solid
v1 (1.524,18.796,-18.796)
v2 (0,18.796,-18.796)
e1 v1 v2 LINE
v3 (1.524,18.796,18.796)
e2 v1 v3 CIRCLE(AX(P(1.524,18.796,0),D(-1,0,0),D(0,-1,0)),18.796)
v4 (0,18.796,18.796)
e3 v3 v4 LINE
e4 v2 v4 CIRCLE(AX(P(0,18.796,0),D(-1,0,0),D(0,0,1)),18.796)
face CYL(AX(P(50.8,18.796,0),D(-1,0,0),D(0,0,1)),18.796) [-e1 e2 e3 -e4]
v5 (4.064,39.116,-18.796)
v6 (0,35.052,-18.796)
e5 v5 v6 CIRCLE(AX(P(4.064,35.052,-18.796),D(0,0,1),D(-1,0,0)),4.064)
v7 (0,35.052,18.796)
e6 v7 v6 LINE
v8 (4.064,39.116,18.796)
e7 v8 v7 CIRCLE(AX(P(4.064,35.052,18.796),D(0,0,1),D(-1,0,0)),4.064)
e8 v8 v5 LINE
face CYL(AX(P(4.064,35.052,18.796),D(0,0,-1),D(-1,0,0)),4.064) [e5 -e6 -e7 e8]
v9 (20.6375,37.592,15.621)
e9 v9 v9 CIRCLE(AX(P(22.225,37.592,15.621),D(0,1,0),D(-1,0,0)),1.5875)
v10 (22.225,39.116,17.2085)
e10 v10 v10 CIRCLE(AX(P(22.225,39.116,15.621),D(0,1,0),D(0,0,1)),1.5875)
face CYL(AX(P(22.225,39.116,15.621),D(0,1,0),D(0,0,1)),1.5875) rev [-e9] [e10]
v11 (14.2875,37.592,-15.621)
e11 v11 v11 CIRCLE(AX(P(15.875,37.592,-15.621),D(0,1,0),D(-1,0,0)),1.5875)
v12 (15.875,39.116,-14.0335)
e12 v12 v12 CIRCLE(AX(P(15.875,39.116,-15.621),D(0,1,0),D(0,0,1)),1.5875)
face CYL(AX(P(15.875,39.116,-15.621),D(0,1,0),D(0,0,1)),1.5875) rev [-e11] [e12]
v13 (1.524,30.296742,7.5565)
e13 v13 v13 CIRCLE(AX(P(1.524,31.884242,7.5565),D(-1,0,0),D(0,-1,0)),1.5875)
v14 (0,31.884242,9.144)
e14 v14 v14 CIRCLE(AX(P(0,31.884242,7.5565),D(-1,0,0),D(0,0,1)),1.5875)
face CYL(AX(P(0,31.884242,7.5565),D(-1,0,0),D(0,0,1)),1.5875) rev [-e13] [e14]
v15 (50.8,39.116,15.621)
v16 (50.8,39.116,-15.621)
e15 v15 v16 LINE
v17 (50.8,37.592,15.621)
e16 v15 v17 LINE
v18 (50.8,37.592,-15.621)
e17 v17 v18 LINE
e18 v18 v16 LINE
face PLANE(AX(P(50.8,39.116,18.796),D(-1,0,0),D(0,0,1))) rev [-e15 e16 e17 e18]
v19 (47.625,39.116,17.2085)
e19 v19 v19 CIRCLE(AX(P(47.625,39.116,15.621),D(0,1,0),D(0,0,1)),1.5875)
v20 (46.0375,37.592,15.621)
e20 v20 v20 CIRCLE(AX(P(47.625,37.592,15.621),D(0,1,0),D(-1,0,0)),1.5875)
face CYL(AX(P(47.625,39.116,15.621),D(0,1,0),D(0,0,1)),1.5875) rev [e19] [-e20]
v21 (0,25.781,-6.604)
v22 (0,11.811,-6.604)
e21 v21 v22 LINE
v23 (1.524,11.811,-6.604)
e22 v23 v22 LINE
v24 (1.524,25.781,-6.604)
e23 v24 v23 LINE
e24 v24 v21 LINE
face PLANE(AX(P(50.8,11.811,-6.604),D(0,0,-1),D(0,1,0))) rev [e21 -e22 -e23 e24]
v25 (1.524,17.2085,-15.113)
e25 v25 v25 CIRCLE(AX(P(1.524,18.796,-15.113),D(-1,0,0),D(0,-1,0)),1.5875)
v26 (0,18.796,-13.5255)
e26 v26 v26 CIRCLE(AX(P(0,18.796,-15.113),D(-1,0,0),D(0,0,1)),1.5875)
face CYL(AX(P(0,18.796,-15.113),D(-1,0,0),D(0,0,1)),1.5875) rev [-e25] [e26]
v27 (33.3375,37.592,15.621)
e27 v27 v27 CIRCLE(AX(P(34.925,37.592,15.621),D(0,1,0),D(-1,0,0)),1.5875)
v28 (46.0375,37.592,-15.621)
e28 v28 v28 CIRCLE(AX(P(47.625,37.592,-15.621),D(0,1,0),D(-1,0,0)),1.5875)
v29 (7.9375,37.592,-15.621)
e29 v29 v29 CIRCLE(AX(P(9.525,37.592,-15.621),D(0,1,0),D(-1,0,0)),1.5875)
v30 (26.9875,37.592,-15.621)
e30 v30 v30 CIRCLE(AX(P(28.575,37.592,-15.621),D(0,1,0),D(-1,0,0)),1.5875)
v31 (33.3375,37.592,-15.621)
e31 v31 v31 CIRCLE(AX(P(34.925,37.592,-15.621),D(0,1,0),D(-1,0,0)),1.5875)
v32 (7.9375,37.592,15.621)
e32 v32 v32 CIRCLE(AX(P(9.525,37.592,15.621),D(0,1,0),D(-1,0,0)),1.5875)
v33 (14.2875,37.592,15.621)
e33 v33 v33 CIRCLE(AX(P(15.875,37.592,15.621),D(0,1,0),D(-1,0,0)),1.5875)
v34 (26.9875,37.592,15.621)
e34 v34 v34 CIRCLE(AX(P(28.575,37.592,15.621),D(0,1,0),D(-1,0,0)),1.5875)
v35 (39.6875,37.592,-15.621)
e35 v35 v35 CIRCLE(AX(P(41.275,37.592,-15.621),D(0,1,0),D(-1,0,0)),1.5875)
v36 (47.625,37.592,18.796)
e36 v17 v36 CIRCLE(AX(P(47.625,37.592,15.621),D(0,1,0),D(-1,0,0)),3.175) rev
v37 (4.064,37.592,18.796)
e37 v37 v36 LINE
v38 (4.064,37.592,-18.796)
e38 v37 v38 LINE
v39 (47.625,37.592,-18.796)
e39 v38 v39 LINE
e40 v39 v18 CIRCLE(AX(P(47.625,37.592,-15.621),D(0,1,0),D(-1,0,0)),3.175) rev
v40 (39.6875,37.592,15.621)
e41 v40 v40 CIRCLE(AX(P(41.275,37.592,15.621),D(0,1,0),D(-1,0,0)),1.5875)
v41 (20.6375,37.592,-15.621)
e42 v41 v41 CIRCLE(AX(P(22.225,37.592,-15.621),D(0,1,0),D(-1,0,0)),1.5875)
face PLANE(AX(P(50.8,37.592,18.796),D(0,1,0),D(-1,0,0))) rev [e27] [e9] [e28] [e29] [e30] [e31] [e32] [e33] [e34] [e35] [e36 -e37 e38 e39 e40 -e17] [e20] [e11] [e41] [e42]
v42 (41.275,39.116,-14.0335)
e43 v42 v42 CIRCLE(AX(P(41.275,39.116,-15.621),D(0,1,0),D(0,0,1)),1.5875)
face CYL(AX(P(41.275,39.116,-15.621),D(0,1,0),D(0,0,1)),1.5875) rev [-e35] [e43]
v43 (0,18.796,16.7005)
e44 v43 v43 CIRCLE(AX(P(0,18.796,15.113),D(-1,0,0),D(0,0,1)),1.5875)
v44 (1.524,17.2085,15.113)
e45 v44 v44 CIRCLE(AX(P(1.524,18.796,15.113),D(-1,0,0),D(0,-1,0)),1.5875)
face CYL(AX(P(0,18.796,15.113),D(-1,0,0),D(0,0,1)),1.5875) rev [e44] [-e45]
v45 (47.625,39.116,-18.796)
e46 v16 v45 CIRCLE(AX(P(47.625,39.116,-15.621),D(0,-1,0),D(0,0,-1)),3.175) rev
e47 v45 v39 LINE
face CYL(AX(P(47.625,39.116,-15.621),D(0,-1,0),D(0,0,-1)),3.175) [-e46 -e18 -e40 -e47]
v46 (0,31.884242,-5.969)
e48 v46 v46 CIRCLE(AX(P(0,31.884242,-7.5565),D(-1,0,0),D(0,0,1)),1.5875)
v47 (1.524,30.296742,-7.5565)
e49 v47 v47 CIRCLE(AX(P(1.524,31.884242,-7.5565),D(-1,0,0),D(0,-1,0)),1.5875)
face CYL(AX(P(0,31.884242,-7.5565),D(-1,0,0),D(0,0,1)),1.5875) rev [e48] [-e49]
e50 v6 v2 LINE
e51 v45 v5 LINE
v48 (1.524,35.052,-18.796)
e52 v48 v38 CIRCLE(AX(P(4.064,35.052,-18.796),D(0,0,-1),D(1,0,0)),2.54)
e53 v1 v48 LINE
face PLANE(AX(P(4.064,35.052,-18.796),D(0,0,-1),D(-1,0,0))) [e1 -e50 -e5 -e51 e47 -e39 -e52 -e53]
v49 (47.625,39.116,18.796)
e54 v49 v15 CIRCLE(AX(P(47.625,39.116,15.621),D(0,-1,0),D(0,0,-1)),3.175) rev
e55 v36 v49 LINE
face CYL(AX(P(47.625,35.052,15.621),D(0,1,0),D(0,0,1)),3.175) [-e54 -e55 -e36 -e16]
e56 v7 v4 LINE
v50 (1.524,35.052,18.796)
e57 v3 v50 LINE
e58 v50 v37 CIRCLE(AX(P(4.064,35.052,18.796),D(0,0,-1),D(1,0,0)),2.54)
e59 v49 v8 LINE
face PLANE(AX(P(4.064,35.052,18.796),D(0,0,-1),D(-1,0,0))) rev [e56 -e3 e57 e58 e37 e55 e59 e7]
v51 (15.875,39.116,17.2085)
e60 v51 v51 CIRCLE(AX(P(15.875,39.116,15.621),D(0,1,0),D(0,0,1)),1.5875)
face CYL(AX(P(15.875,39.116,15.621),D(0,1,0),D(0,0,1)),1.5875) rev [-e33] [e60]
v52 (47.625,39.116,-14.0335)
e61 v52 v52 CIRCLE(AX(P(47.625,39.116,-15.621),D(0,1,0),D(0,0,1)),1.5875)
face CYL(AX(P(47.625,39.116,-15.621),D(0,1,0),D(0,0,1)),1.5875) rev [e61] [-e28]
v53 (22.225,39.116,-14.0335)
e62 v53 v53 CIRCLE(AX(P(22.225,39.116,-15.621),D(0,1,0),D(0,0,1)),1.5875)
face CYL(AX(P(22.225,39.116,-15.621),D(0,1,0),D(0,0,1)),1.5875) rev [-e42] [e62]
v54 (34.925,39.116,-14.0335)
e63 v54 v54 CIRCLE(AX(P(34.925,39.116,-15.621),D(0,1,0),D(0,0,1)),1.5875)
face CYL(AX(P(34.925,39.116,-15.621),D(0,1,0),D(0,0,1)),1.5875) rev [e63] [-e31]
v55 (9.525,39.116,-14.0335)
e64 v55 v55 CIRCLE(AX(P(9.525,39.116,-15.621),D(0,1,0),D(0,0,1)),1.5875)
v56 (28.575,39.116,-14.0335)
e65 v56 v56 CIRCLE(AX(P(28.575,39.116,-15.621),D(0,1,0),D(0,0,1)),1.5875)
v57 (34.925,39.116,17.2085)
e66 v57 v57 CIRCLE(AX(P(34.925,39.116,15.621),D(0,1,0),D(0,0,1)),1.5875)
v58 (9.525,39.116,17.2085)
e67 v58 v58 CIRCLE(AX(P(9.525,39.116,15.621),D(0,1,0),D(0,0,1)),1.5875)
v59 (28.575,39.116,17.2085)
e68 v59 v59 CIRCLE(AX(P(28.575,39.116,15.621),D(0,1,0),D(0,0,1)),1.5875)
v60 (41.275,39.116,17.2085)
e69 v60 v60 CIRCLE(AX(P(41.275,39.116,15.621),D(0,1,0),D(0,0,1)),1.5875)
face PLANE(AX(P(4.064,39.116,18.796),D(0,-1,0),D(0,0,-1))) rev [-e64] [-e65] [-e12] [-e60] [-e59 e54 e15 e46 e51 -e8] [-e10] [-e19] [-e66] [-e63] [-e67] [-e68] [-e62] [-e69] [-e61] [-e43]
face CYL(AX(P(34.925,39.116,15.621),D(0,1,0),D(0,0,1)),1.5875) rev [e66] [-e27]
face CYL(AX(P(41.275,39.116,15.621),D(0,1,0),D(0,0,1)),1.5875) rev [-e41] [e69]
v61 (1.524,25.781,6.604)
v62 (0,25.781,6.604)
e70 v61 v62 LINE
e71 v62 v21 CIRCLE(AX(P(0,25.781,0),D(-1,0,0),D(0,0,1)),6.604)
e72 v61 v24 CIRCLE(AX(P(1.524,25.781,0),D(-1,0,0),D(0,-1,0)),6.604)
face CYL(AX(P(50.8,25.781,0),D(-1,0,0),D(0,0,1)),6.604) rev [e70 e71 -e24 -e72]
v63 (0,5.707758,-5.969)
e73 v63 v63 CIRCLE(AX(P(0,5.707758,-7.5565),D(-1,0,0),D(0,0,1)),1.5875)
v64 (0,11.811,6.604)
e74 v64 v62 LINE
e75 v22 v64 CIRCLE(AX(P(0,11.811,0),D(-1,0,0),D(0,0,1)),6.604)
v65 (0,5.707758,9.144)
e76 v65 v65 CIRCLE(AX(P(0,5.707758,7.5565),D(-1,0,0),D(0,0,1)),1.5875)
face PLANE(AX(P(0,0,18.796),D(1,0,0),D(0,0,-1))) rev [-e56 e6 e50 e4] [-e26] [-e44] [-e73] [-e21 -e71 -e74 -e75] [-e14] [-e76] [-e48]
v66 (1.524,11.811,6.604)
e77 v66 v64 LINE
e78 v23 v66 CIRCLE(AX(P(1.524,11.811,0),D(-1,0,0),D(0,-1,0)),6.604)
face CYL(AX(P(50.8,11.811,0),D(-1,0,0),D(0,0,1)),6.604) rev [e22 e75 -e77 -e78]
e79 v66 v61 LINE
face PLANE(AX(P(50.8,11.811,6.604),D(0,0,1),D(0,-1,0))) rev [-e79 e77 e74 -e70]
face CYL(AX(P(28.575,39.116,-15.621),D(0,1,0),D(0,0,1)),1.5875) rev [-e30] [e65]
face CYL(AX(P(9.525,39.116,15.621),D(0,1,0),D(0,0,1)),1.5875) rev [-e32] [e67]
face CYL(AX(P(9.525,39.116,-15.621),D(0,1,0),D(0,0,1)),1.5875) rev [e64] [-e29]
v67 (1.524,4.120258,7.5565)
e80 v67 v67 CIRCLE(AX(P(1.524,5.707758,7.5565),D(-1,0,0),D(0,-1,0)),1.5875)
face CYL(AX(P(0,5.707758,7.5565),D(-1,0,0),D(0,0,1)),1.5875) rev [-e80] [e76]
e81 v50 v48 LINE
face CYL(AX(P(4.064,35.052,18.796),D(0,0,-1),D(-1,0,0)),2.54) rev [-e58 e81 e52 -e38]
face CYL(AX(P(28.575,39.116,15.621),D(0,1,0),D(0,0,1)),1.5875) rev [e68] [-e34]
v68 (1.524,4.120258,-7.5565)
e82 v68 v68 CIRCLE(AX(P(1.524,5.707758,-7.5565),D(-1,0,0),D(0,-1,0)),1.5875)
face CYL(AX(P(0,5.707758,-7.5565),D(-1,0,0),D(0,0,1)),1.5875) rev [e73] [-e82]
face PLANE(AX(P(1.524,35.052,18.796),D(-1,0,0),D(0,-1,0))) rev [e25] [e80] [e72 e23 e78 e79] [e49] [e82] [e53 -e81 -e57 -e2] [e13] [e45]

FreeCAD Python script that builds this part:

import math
import FreeCAD as App
import Part
import Sketcher
from FreeCAD import Vector
Q = App.Units.Quantity


def edges_at(feature, points):
    """Names of the edges that pass closest to the given points."""
    edges = feature.Shape.Edges
    near = lambda p: min(range(len(edges)), key=lambda i: edges[i].distToShape(Part.Vertex(*p))[0])
    return sorted({f"Edge{near(p) + 1}" for p in points})

doc = App.newDocument("Part")
body = doc.addObject("PartDesign::Body", "Body")

sketch1 = body.newObject("Sketcher::SketchObject", "Sketch")
sketch1.AttachmentSupport = (doc.getObject("XY_Plane"), [""])
sketch1.MapMode = "FlatFace"
sketch1.addGeometry([
    Part.LineSegment(Vector(0, 35.052, 0), Vector(0, 0, 0)),
    Part.LineSegment(Vector(0, 0, 0), Vector(1.524, 0, 0)),
    Part.LineSegment(Vector(1.524, 0, 0), Vector(1.524, 35.052, 0)),
    Part.ArcOfCircle(Part.Circle(Vector(4.064, 35.052, 0), Vector(0, 0, 1), 2.54), math.radians(90), math.radians(180)),
    Part.LineSegment(Vector(4.064, 37.592, 0), Vector(50.8, 37.592, 0)),
    Part.LineSegment(Vector(50.8, 37.592, 0), Vector(50.8, 39.116, 0)),
    Part.LineSegment(Vector(50.8, 39.116, 0), Vector(4.064, 39.116, 0)),
    Part.ArcOfCircle(Part.Circle(Vector(4.064, 35.052, 0), Vector(0, 0, 1), 4.064), math.radians(90), math.radians(180)),
], False)
sketch1.addConstraint([
    Sketcher.Constraint("Coincident", 0, 2, 1, 1),
    Sketcher.Constraint("Coincident", 1, 2, 2, 1),
    Sketcher.Constraint("Tangent", 2, 2, 3, 2),
    Sketcher.Constraint("Tangent", 3, 1, 4, 1),
    Sketcher.Constraint("Coincident", 4, 2, 5, 1),
    Sketcher.Constraint("Coincident", 5, 2, 6, 1),
    Sketcher.Constraint("Tangent", 6, 2, 7, 1),
    Sketcher.Constraint("Tangent", 7, 2, 0, 1),
    Sketcher.Constraint("Vertical", 0),
    Sketcher.Constraint("Horizontal", 1),
    Sketcher.Constraint("Vertical", 2),
    Sketcher.Constraint("Horizontal", 4),
    Sketcher.Constraint("Vertical", 5),
    Sketcher.Constraint("Horizontal", 6),
    Sketcher.Constraint("Coincident", 0, 2, -1, 1),
    Sketcher.Constraint("Coincident", 7, 3, 3, 3),
    Sketcher.Constraint("Radius", 3, Q("0.1 in")),
    Sketcher.Constraint("Radius", 7, Q("0.16 in")),
    Sketcher.Constraint("DistanceX", -1, 1, 4, 2, Q("2 in")),
    Sketcher.Constraint("DistanceY", 0, 2, 0, 1, Q("1.38 in")),
])
pad1 = body.newObject("PartDesign::Pad", "Pad")
pad1.Profile = sketch1
pad1.Length = Q("1.48 in")
pad1.Midplane = True

sketch2 = body.newObject("Sketcher::SketchObject", "Sketch001")
sketch2.AttachmentSupport = (doc.getObject("YZ_Plane"), [""])
sketch2.MapMode = "FlatFace"
sketch2.addGeometry([
    Part.ArcOfCircle(Part.Circle(Vector(18.796, 0, 0), Vector(0, 0, 1), 18.796), math.radians(-180), math.radians(-90)),
    Part.LineSegment(Vector(18.796, -18.796, 0), Vector(0, -18.796, 0)),
    Part.LineSegment(Vector(0, -18.796, 0), Vector(0, 0, 0)),
    Part.ArcOfCircle(Part.Circle(Vector(18.796, 0, 0), Vector(0, 0, 1), 18.796), math.radians(90), math.radians(180)),
    Part.LineSegment(Vector(0, 0, 0), Vector(0, 18.796, 0)),
    Part.LineSegment(Vector(0, 18.796, 0), Vector(18.796, 18.796, 0)),
], False)
sketch2.addConstraint([
    Sketcher.Constraint("Tangent", 0, 2, 1, 1),
    Sketcher.Constraint("Coincident", 1, 2, 2, 1),
    Sketcher.Constraint("Tangent", 2, 2, 0, 1),
    Sketcher.Constraint("Tangent", 3, 2, 4, 1),
    Sketcher.Constraint("Coincident", 4, 2, 5, 1),
    Sketcher.Constraint("Tangent", 5, 2, 3, 1),
    Sketcher.Constraint("Horizontal", 1),
    Sketcher.Constraint("Vertical", 2),
    Sketcher.Constraint("Vertical", 4),
    Sketcher.Constraint("Horizontal", 5),
    Sketcher.Constraint("Coincident", 2, 2, -1, 1),
    Sketcher.Constraint("Coincident", 3, 2, -1, 1),
    Sketcher.Constraint("Equal", 0, 3),
    Sketcher.Constraint("Radius", 0, Q("0.74 in")),
])
pocket1 = body.newObject("PartDesign::Pocket", "Pocket")
pocket1.Profile = sketch2
pocket1.Type = "ThroughAll"
pocket1.Reversed = True

sketch3 = body.newObject("Sketcher::SketchObject", "Sketch002")
sketch3.AttachmentSupport = (doc.getObject("YZ_Plane"), [""])
sketch3.MapMode = "FlatFace"
sketch3.addGeometry([
    Part.LineSegment(Vector(25.781, -6.604, 0), Vector(11.811, -6.604, 0)),
    Part.ArcOfCircle(Part.Circle(Vector(11.811, 0, 0), Vector(0, 0, 1), 6.604), math.radians(90), math.radians(270)),
    Part.LineSegment(Vector(11.811, 6.604, 0), Vector(25.781, 6.604, 0)),
    Part.ArcOfCircle(Part.Circle(Vector(25.781, 0, 0), Vector(0, 0, 1), 6.604), math.radians(-90), math.radians(90)),
], False)
sketch3.addConstraint([
    Sketcher.Constraint("Tangent", 0, 2, 1, 2),
    Sketcher.Constraint("Tangent", 1, 1, 2, 1),
    Sketcher.Constraint("Tangent", 2, 2, 3, 2),
    Sketcher.Constraint("Tangent", 3, 1, 0, 1),
    Sketcher.Constraint("Horizontal", 0),
    Sketcher.Constraint("Horizontal", 2),
    Sketcher.Constraint("PointOnObject", 1, 3, -1),
    Sketcher.Constraint("Radius", 1, Q("0.26 in")),
    Sketcher.Constraint("DistanceX", 0, 2, 0, 1, Q("0.55 in")),
    Sketcher.Constraint("DistanceX", -1, 1, 1, 3, Q("0.465 in")),
])
pocket2 = body.newObject("PartDesign::Pocket", "Pocket001")
pocket2.Profile = sketch3
pocket2.Type = "ThroughAll"
pocket2.Reversed = True

sketch4 = body.newObject("Sketcher::SketchObject", "Sketch003")
sketch4.AttachmentSupport = (doc.getObject("YZ_Plane"), [""])
sketch4.MapMode = "FlatFace"
sketch4.addGeometry([
    Part.Circle(Vector(31.884242, -7.5565, 0), Vector(0, 0, 1), 1.5875),
    Part.Circle(Vector(31.884242, 7.5565, 0), Vector(0, 0, 1), 1.5875),
    Part.Circle(Vector(18.796, 15.113, 0), Vector(0, 0, 1), 1.5875),
    Part.Circle(Vector(5.707758, 7.5565, 0), Vector(0, 0, 1), 1.5875),
    Part.Circle(Vector(5.707758, -7.5565, 0), Vector(0, 0, 1), 1.5875),
    Part.Circle(Vector(18.796, -15.113, 0), Vector(0, 0, 1), 1.5875),
], False)
sketch4.addConstraint([
    Sketcher.Constraint("Equal", 0, 1),
    Sketcher.Constraint("Equal", 1, 2),
    Sketcher.Constraint("Equal", 2, 3),
    Sketcher.Constraint("Equal", 3, 4),
    Sketcher.Constraint("Equal", 4, 5),
    Sketcher.Constraint("Symmetric", 0, 3, 1, 3, -1),
    Sketcher.Constraint("Symmetric", 3, 3, 4, 3, -1),
    Sketcher.Constraint("Symmetric", 2, 3, 5, 3, -1),
    Sketcher.Constraint("Horizontal", 1, 3, 3, 3),
    Sketcher.Constraint("Diameter", 0, Q("0.125 in")),
    Sketcher.Constraint("DistanceX", -1, 1, 2, 3, Q("0.74 in")),
    Sketcher.Constraint("DistanceY", 5, 3, 2, 3, Q("1.19 in")),
    Sketcher.Constraint("DistanceY", 0, 3, 1, 3, Q("0.595 in")),
    Sketcher.Constraint("DistanceX", -1, 1, 0, 3, 31.884242),
    Sketcher.Constraint("DistanceX", -1, 1, 3, 3, 5.707758),
])
doc.recompute()
hole = body.newObject("PartDesign::Hole", "Hole")
hole.Profile = sketch4
hole.ThreadType = "None"
hole.Diameter = Q("0.125 in")
hole.DepthType = "ThroughAll"
hole.Reversed = True
doc.recompute()

fillet = body.newObject("PartDesign::Fillet", "Fillet")
fillet.Base = (hole, edges_at(hole, [(50.8, 38.354, 18.796), (50.8, 38.354, -18.796)]))
fillet.Radius = Q("0.125 in")

sketch5 = body.newObject("Sketcher::SketchObject", "Sketch004")
sketch5.AttachmentSupport = (doc.getObject("XZ_Plane"), [""])
sketch5.MapMode = "FlatFace"
sketch5.AttachmentOffset = App.Placement(Vector(0, 0, -1.54 * 25.4), App.Rotation())
sketch5.addGeometry(Part.Circle(Vector(47.625, -15.621, 0), Vector(0, 0, 1), 1.5875), False)
sketch5.addConstraint([
    Sketcher.Constraint("Diameter", 0, Q("0.125 in")),
    Sketcher.Constraint("DistanceX", -1, 1, 0, 3, Q("1.875 in")),
    Sketcher.Constraint("DistanceY", 0, 3, -1, 1, Q("0.615 in")),
])
doc.recompute()
hole2 = body.newObject("PartDesign::Hole", "Hole001")
hole2.Profile = sketch5
hole2.ThreadType = "None"
hole2.Diameter = Q("0.125 in")
hole2.DepthType = "ThroughAll"
hole2.Reversed = True
doc.recompute()

linearpattern = body.newObject("PartDesign::LinearPattern", "LinearPattern")
linearpattern.Originals = [hole2]
linearpattern.Direction = (doc.getObject("X_Axis"), [""])
linearpattern.Mode = "offset"
linearpattern.Offset = Q("0.25 in")
linearpattern.Occurrences = 7
linearpattern.Reversed = True
body.Tip = linearpattern
doc.recompute()

mirrored = body.newObject("PartDesign::Mirrored", "Mirrored")
mirrored.Originals = [hole2]
mirrored.MirrorPlane = (doc.getObject("XY_Plane"), [""])
body.Tip = mirrored

sketch6 = body.newObject("Sketcher::SketchObject", "Sketch005")
sketch6.AttachmentSupport = (doc.getObject("XZ_Plane"), [""])
sketch6.MapMode = "FlatFace"
sketch6.AttachmentOffset = App.Placement(Vector(0, 0, -1.54 * 25.4), App.Rotation())
sketch6.addGeometry(Part.Circle(Vector(41.275, 15.621, 0), Vector(0, 0, 1), 1.5875), False)
sketch6.addConstraint([
    Sketcher.Constraint("Diameter", 0, Q("0.125 in")),
    Sketcher.Constraint("DistanceX", -1, 1, 0, 3, Q("1.625 in")),
    Sketcher.Constraint("DistanceY", -1, 1, 0, 3, Q("0.615 in")),
])
doc.recompute()
hole3 = body.newObject("PartDesign::Hole", "Hole002")
hole3.Profile = sketch6
hole3.ThreadType = "None"
hole3.Diameter = Q("0.125 in")
hole3.DepthType = "ThroughAll"
hole3.Reversed = True

sketch7 = body.newObject("Sketcher::SketchObject", "Sketch006")
sketch7.AttachmentSupport = (doc.getObject("XZ_Plane"), [""])
sketch7.MapMode = "FlatFace"
sketch7.AttachmentOffset = App.Placement(Vector(0, 0, -1.54 * 25.4), App.Rotation())
sketch7.addGeometry(Part.Circle(Vector(34.925, 15.621, 0), Vector(0, 0, 1), 1.5875), False)
sketch7.addConstraint([
    Sketcher.Constraint("Diameter", 0, Q("0.125 in")),
    Sketcher.Constraint("DistanceX", -1, 1, 0, 3, Q("1.375 in")),
    Sketcher.Constraint("DistanceY", -1, 1, 0, 3, Q("0.615 in")),
])
doc.recompute()
hole4 = body.newObject("PartDesign::Hole", "Hole003")
hole4.Profile = sketch7
hole4.ThreadType = "None"
hole4.Diameter = Q("0.125 in")
hole4.DepthType = "ThroughAll"
hole4.Reversed = True

sketch8 = body.newObject("Sketcher::SketchObject", "Sketch007")
sketch8.AttachmentSupport = (doc.getObject("XZ_Plane"), [""])
sketch8.MapMode = "FlatFace"
sketch8.AttachmentOffset = App.Placement(Vector(0, 0, -1.54 * 25.4), App.Rotation())
sketch8.addGeometry(Part.Circle(Vector(28.575, 15.621, 0), Vector(0, 0, 1), 1.5875), False)
sketch8.addConstraint([
    Sketcher.Constraint("Diameter", 0, Q("0.125 in")),
    Sketcher.Constraint("DistanceX", -1, 1, 0, 3, Q("1.125 in")),
    Sketcher.Constraint("DistanceY", -1, 1, 0, 3, Q("0.615 in")),
])
doc.recompute()
hole5 = body.newObject("PartDesign::Hole", "Hole004")
hole5.Profile = sketch8
hole5.ThreadType = "None"
hole5.Diameter = Q("0.125 in")
hole5.DepthType = "ThroughAll"
hole5.Reversed = True

sketch9 = body.newObject("Sketcher::SketchObject", "Sketch008")
sketch9.AttachmentSupport = (doc.getObject("XZ_Plane"), [""])
sketch9.MapMode = "FlatFace"
sketch9.AttachmentOffset = App.Placement(Vector(0, 0, -1.54 * 25.4), App.Rotation())
sketch9.addGeometry(Part.Circle(Vector(22.225, 15.621, 0), Vector(0, 0, 1), 1.5875), False)
sketch9.addConstraint([
    Sketcher.Constraint("Diameter", 0, Q("0.125 in")),
    Sketcher.Constraint("DistanceX", -1, 1, 0, 3, Q("0.875 in")),
    Sketcher.Constraint("DistanceY", -1, 1, 0, 3, Q("0.615 in")),
])
doc.recompute()
hole6 = body.newObject("PartDesign::Hole", "Hole005")
hole6.Profile = sketch9
hole6.ThreadType = "None"
hole6.Diameter = Q("0.125 in")
hole6.DepthType = "ThroughAll"
hole6.Reversed = True

sketch10 = body.newObject("Sketcher::SketchObject", "Sketch009")
sketch10.AttachmentSupport = (doc.getObject("XZ_Plane"), [""])
sketch10.MapMode = "FlatFace"
sketch10.AttachmentOffset = App.Placement(Vector(0, 0, -1.54 * 25.4), App.Rotation())
sketch10.addGeometry(Part.Circle(Vector(15.875, 15.621, 0), Vector(0, 0, 1), 1.5875), False)
sketch10.addConstraint([
    Sketcher.Constraint("Diameter", 0, Q("0.125 in")),
    Sketcher.Constraint("DistanceX", -1, 1, 0, 3, Q("0.625 in")),
    Sketcher.Constraint("DistanceY", -1, 1, 0, 3, Q("0.615 in")),
])
doc.recompute()
hole7 = body.newObject("PartDesign::Hole", "Hole006")
hole7.Profile = sketch10
hole7.ThreadType = "None"
hole7.Diameter = Q("0.125 in")
hole7.DepthType = "ThroughAll"
hole7.Reversed = True

sketch11 = body.newObject("Sketcher::SketchObject", "Sketch010")
sketch11.AttachmentSupport = (doc.getObject("XZ_Plane"), [""])
sketch11.MapMode = "FlatFace"
sketch11.AttachmentOffset = App.Placement(Vector(0, 0, -1.54 * 25.4), App.Rotation())
sketch11.addGeometry(Part.Circle(Vector(9.525, 15.621, 0), Vector(0, 0, 1), 1.5875), False)
sketch11.addConstraint([
    Sketcher.Constraint("Diameter", 0, Q("0.125 in")),
    Sketcher.Constraint("DistanceX", -1, 1, 0, 3, Q("0.375 in")),
    Sketcher.Constraint("DistanceY", -1, 1, 0, 3, Q("0.615 in")),
])
doc.recompute()
hole8 = body.newObject("PartDesign::Hole", "Hole007")
hole8.Profile = sketch11
hole8.ThreadType = "None"
hole8.Diameter = Q("0.125 in")
hole8.DepthType = "ThroughAll"
hole8.Reversed = True

doc.recompute()
